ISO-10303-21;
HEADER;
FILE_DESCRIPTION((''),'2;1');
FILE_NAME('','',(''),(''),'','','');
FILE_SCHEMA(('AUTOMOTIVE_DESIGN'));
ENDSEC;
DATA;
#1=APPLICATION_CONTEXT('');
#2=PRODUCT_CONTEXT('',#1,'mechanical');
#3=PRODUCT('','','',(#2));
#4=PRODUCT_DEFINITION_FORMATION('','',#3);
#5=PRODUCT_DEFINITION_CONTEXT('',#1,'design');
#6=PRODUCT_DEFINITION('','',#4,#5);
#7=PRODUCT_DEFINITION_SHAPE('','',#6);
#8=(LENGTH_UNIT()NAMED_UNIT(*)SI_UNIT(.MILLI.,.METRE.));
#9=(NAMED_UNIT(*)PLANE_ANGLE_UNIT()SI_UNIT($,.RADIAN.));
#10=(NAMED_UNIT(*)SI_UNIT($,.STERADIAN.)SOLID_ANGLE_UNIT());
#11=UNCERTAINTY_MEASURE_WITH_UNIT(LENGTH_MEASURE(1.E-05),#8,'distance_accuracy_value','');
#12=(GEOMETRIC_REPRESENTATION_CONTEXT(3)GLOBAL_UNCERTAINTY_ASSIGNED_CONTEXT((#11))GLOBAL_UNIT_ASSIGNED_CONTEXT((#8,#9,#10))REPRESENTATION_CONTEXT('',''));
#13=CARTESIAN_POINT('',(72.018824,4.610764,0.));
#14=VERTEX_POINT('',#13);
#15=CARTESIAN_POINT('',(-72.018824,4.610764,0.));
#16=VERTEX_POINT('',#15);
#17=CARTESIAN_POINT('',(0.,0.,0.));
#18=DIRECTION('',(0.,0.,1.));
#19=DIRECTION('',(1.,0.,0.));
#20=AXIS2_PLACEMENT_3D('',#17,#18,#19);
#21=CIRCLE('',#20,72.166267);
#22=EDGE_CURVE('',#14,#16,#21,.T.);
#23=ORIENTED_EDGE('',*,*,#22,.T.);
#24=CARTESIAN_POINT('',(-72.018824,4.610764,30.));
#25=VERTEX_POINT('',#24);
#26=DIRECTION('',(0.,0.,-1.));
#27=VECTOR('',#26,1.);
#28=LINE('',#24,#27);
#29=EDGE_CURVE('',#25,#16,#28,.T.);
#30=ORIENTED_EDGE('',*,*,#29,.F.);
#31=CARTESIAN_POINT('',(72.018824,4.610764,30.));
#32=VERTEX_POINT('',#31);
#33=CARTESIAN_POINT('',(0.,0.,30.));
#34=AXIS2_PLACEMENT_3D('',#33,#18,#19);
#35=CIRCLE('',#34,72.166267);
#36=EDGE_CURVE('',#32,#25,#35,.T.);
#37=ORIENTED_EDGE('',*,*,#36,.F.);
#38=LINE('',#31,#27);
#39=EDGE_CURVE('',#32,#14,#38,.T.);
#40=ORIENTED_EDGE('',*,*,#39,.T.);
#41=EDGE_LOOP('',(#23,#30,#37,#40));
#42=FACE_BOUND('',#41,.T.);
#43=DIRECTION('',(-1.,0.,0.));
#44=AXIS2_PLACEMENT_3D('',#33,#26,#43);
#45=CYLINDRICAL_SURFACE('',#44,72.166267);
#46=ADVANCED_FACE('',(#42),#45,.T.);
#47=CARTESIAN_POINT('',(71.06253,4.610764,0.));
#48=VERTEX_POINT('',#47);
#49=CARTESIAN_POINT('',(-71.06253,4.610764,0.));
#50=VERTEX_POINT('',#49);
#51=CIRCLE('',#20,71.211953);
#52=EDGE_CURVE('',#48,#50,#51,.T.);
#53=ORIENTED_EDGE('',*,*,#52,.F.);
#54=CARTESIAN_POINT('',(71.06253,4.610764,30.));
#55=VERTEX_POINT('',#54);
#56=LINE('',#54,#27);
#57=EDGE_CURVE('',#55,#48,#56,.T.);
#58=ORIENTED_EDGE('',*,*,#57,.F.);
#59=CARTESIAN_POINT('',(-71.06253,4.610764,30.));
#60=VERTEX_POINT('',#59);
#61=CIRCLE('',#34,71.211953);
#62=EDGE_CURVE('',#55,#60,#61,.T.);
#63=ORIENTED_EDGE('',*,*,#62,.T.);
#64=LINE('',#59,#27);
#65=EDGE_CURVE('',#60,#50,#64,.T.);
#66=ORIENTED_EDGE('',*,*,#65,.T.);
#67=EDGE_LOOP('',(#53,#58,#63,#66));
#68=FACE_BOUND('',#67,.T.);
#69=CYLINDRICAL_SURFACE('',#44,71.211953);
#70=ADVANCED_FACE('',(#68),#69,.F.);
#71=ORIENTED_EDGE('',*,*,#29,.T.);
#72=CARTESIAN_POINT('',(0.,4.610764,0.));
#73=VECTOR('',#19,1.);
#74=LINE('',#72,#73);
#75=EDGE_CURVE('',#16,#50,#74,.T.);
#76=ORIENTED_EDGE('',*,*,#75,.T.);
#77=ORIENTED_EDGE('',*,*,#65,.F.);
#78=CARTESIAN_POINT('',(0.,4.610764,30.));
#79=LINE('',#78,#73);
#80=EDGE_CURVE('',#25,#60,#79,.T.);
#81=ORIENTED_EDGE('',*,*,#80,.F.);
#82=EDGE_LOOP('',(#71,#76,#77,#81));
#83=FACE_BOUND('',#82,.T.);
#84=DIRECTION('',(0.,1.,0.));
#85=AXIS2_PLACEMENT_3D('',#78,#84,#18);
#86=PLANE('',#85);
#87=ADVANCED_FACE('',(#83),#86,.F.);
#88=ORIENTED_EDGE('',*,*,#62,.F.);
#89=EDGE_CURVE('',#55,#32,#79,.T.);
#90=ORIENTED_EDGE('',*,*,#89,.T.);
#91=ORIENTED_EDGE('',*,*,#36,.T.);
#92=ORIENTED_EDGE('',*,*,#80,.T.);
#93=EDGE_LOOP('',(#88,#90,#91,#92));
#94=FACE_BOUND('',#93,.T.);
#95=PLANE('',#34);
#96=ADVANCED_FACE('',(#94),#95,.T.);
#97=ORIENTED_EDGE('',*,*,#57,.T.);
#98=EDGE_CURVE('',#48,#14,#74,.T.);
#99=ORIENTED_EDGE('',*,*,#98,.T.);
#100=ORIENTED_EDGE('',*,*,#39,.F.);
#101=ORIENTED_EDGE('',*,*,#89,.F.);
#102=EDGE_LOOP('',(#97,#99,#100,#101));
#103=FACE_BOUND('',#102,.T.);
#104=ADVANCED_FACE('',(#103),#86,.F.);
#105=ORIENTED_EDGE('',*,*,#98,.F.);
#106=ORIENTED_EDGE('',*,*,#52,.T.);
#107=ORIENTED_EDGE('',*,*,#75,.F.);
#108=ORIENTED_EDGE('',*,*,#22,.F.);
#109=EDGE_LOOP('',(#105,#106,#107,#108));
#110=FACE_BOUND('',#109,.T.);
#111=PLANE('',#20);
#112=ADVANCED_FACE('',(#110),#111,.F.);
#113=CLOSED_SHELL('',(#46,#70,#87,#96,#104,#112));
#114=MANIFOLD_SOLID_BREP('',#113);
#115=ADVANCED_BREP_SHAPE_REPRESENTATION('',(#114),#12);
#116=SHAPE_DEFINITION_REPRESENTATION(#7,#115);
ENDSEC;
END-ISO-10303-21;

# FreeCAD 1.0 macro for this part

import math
import FreeCAD as App
import Part
import Sketcher
from FreeCAD import Vector

doc = App.newDocument("Part")
body = doc.addObject("PartDesign::Body", "Body")

sketch1 = body.newObject("Sketcher::SketchObject", "Sketch")
sketch1.AttachmentSupport = (doc.getObject("XY_Plane"), [""])
sketch1.MapMode = "FlatFace"
sketch1.addGeometry([
    Part.ArcOfCircle(Part.Circle(Vector(0, 0, 0), Vector(0, 0, 1), 72.2), math.radians(4), math.radians(176)),
    Part.LineSegment(Vector(-72, 4.6, 0), Vector(-71.1, 4.6, 0)),
    Part.ArcOfCircle(Part.Circle(Vector(0, 0, 0), Vector(0, 0, 1), 71.2), math.radians(4), math.radians(176)),
    Part.LineSegment(Vector(71.1, 4.6, 0), Vector(72, 4.6, 0)),
], False)
sketch1.addConstraint([
    Sketcher.Constraint("Coincident", 0, 2, 1, 1),
    Sketcher.Constraint("Coincident", 1, 2, 2, 2),
    Sketcher.Constraint("Coincident", 2, 1, 3, 1),
    Sketcher.Constraint("Coincident", 3, 2, 0, 1),
    Sketcher.Constraint("Horizontal", 1),
    Sketcher.Constraint("Horizontal", 3),
    Sketcher.Constraint("Coincident", 0, 3, -1, 1),
    Sketcher.Constraint("Coincident", 2, 3, -1, 1),
    Sketcher.Constraint("Horizontal", 1, 2, 2, 1),
    Sketcher.Constraint("Radius", 0, 72.166267),
    Sketcher.Constraint("Radius", 2, 71.211953),
    Sketcher.Constraint("DistanceX", 1, 2, -1, 1, 71.06253),
])
pad1 = body.newObject("PartDesign::Pad", "Pad")
pad1.Profile = sketch1
pad1.Length = 30

doc.recompute()
